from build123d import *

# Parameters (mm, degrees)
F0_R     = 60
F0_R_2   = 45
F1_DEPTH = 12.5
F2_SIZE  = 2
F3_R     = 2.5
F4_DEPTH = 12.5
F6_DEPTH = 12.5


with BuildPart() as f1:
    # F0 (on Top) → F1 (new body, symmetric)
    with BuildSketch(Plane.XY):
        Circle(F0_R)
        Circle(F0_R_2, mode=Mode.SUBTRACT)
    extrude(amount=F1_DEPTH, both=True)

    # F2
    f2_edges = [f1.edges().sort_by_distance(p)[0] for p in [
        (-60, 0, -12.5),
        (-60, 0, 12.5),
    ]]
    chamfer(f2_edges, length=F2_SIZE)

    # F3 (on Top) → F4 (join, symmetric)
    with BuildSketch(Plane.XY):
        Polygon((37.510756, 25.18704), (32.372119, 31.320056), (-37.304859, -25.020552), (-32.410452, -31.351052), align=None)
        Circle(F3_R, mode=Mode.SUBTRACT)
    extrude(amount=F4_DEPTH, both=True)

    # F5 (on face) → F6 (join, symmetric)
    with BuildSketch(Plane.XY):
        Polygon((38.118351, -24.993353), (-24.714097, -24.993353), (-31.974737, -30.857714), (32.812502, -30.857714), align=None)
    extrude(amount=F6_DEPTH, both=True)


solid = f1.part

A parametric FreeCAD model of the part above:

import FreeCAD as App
import Part
import Sketcher
Q = App.Units.Quantity


def edges_at(feature, points):
    """Names of the edges that pass closest to the given points."""
    edges = feature.Shape.Edges
    near = lambda p: min(range(len(edges)), key=lambda i: edges[i].distToShape(Part.Vertex(*p))[0])
    return sorted({f"Edge{near(p) + 1}" for p in points})


def add_polygon(sketch, points):
    """Adds a closed chain of lines whose ends are joined by coincident constraints."""
    first, n = sketch.GeometryCount, len(points)
    for a, b in zip(points, points[1:] + points[:1]):
        sketch.addGeometry(Part.LineSegment(App.Vector(*a, 0), App.Vector(*b, 0)), False)
    for i in range(n):
        sketch.addConstraint(Sketcher.Constraint("Coincident", first + i, 2, first + (i + 1) % n, 1))

doc = App.newDocument("Part")
params = doc.addObject("Spreadsheet::Sheet", "Params")
for row, (alias, value) in enumerate([
    ("sketch1_diameter", "120 mm"),
    ("sketch1_diameter2", "90 mm"),
    ("pad1_length", "25 mm"),
    ("chamfer_size", "2 mm"),
    ("sketch2_diameter", "5 mm"),
    ("pad2_length", "25 mm"),
    ("pad3_length", "25 mm"),
], start=1):
    params.set(f"A{row}", alias)
    params.set(f"B{row}", "=" + value)
    params.setAlias(f"B{row}", alias)

body = doc.addObject("PartDesign::Body", "Body")

# Sketch on XY plane
sketch1 = doc.addObject("Sketcher::SketchObject", "Sketch")
body.addObject(sketch1)
sketch1.AttachmentSupport = (doc.XY_Plane, [""])
sketch1.MapMode = "FlatFace"
sketch1.addGeometry(Part.Circle(App.Vector(0, 0, 0), App.Vector(0, 0, 1), 60), False)
sketch1.addGeometry(Part.Circle(App.Vector(0, 0, 0), App.Vector(0, 0, 1), 45), False)
sketch1.addConstraint(Sketcher.Constraint("Coincident", 0, 3, -1, 1))
sketch1.addConstraint(Sketcher.Constraint("Coincident", 1, 3, -1, 1))
sketch1.addConstraint(Sketcher.Constraint("Diameter", 0, Q("120 mm")))
sketch1.addConstraint(Sketcher.Constraint("Diameter", 1, Q("90 mm")))
sketch1.setExpression("Constraints[2]", "Params.sketch1_diameter")
sketch1.setExpression("Constraints[3]", "Params.sketch1_diameter2")
pad1 = doc.addObject("PartDesign::Pad", "Pad")
body.addObject(pad1)
pad1.Profile = sketch1
pad1.setExpression("Length", "Params.pad1_length")
pad1.Midplane = True
doc.recompute()

chamfer = doc.addObject("PartDesign::Chamfer", "Chamfer")
body.addObject(chamfer)
chamfer.Base = (pad1, edges_at(pad1, [(-60, 0, -12.5), (-60, 0, 12.5)]))
chamfer.setExpression("Size", "Params.chamfer_size")

# Sketch on XY plane
sketch2 = doc.addObject("Sketcher::SketchObject", "Sketch001")
body.addObject(sketch2)
sketch2.AttachmentSupport = (doc.XY_Plane, [""])
sketch2.MapMode = "FlatFace"
add_polygon(sketch2, [(37.5, 25.2), (32.4, 31.3), (-37.3, -25), (-32.4, -31.4)])  # lines 0-3
sketch2.addGeometry(Part.Circle(App.Vector(0, 0, 0), App.Vector(0, 0, 1), 2.5), False)  # 4
sketch2.addConstraint(Sketcher.Constraint("Coincident", 4, 3, -1, 1))
sketch2.addConstraint(Sketcher.Constraint("Parallel", 1, 3))
sketch2.addConstraint(Sketcher.Constraint("Diameter", 4, Q("5 mm")))
sketch2.addConstraint(Sketcher.Constraint("Distance", 1, Q("89.605499 mm")))
sketch2.addConstraint(Sketcher.Constraint("DistanceY", 2, 2, 1, 2, Q("6.3305 mm")))
sketch2.addConstraint(Sketcher.Constraint("Distance", 3, Q("89.919582 mm")))
sketch2.addConstraint(Sketcher.Constraint("DistanceX", -1, 1, 0, 2, Q("32.372119 mm")))
sketch2.addConstraint(Sketcher.Constraint("DistanceX", 1, 2, -1, 1, Q("37.304859 mm")))
sketch2.addConstraint(Sketcher.Constraint("DistanceY", 1, 2, -1, 1, Q("25.020552 mm")))
sketch2.addConstraint(Sketcher.Constraint("DistanceX", 2, 2, 0, 2, Q("64.782571 mm")))
sketch2.setExpression("Constraints[6]", "Params.sketch2_diameter")
pad2 = doc.addObject("PartDesign::Pad", "Pad001")
body.addObject(pad2)
pad2.Profile = sketch2
pad2.setExpression("Length", "Params.pad2_length")
pad2.Midplane = True

# Sketch on XY plane
sketch3 = doc.addObject("Sketcher::SketchObject", "Sketch002")
body.addObject(sketch3)
sketch3.AttachmentSupport = (doc.XY_Plane, [""])
sketch3.MapMode = "FlatFace"
add_polygon(sketch3, [(38, -25), (-25, -25), (-32, -31), (33, -31)])  # lines 0-3
sketch3.addConstraint(Sketcher.Constraint("Horizontal", 0))
sketch3.addConstraint(Sketcher.Constraint("Horizontal", 2))
sketch3.addConstraint(Sketcher.Constraint("Distance", 3, Q("7.908398 mm")))
sketch3.addConstraint(Sketcher.Constraint("DistanceX", 2, 1, 2, 2, Q("64.787239 mm")))
sketch3.addConstraint(Sketcher.Constraint("DistanceX", 0, 2, 2, 2, Q("57.526599 mm")))
sketch3.addConstraint(Sketcher.Constraint("DistanceX", 0, 2, 0, 1, Q("62.832448 mm")))
sketch3.addConstraint(Sketcher.Constraint("DistanceX", -1, 1, 3, 2, Q("38.118351 mm")))
sketch3.addConstraint(Sketcher.Constraint("DistanceY", 0, 2, -1, 1, Q("24.993353 mm")))
pad3 = doc.addObject("PartDesign::Pad", "Pad002")
body.addObject(pad3)
pad3.Profile = sketch3
pad3.setExpression("Length", "Params.pad3_length")
pad3.Midplane = True

doc.recompute()
